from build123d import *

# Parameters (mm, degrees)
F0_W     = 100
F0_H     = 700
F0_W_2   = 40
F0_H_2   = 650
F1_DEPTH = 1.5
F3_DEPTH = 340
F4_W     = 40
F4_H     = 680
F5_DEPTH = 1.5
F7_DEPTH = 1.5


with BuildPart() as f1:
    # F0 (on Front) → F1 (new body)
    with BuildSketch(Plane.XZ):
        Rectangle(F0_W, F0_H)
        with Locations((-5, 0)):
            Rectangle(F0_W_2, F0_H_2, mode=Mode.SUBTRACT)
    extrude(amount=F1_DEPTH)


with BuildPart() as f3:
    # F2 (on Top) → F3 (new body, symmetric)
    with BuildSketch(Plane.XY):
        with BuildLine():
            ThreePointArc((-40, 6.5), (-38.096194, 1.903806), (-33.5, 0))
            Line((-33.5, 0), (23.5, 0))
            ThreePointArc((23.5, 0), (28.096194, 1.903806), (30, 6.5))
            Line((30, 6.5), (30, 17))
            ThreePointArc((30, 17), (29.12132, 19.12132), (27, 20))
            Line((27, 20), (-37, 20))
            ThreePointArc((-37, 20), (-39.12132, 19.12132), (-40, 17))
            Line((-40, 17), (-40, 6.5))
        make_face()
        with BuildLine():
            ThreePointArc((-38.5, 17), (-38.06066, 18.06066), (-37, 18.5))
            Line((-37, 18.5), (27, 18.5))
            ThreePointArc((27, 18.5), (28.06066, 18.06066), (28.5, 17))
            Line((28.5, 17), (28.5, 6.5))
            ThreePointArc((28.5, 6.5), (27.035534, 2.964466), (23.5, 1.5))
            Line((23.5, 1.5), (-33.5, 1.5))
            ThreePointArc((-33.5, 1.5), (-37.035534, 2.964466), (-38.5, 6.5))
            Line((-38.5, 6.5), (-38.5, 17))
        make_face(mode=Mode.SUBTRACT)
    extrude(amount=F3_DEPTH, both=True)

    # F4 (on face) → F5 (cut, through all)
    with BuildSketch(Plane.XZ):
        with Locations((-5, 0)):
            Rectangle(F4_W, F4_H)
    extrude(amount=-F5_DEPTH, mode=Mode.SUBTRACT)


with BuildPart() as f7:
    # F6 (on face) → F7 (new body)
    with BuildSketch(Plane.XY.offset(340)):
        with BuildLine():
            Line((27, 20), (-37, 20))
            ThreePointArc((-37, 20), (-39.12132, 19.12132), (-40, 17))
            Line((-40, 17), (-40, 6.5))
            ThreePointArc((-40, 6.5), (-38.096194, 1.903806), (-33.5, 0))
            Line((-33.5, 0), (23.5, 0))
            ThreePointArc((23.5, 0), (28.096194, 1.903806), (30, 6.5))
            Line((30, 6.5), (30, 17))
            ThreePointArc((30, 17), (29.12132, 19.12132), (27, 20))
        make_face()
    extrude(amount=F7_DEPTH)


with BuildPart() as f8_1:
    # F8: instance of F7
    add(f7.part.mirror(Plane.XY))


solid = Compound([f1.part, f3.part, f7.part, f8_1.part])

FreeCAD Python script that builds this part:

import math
import FreeCAD as App
import Part
import Sketcher

V = App.Vector
Q = App.Units.Quantity


def add_polygon(sketch, points):
    """Adds a closed chain of lines whose ends are joined by coincident constraints."""
    first, n = sketch.GeometryCount, len(points)
    for a, b in zip(points, points[1:] + points[:1]):
        sketch.addGeometry(Part.LineSegment(App.Vector(*a, 0), App.Vector(*b, 0)), False)
    for i in range(n):
        sketch.addConstraint(Sketcher.Constraint("Coincident", first + i, 2, first + (i + 1) % n, 1))

doc = App.newDocument("Part")
body = doc.addObject("PartDesign::Body", "Body")

# Sketch on XZ plane
sketch1 = body.newObject("Sketcher::SketchObject", "Sketch")
sketch1.AttachmentSupport = (doc.getObject("XZ_Plane"), [""])
sketch1.MapMode = "FlatFace"
add_polygon(sketch1, [(-50, 350), (-50, -350), (50, -350), (50, 350)])  # lines 0-3
add_polygon(sketch1, [(15, -325), (-25, -325), (-25, 325), (15, 325)])  # lines 4-7
sketch1.addConstraint(Sketcher.Constraint("Vertical", 0))
sketch1.addConstraint(Sketcher.Constraint("Horizontal", 1))
sketch1.addConstraint(Sketcher.Constraint("Vertical", 2))
sketch1.addConstraint(Sketcher.Constraint("Horizontal", 3))
sketch1.addConstraint(Sketcher.Constraint("Horizontal", 4))
sketch1.addConstraint(Sketcher.Constraint("Vertical", 5))
sketch1.addConstraint(Sketcher.Constraint("Horizontal", 6))
sketch1.addConstraint(Sketcher.Constraint("Vertical", 7))
sketch1.addConstraint(Sketcher.Constraint("Symmetric", 0, 2, 2, 2, -1, 1))
sketch1.addConstraint(Sketcher.Constraint("DistanceX", 1, 1, 1, 2, Q("100 mm")))
sketch1.addConstraint(Sketcher.Constraint("DistanceX", 4, 2, 4, 1, Q("40 mm")))
sketch1.addConstraint(Sketcher.Constraint("DistanceY", 0, 2, 0, 1, Q("700 mm")))
sketch1.addConstraint(Sketcher.Constraint("DistanceY", 5, 1, 5, 2, Q("650 mm")))
sketch1.addConstraint(Sketcher.Constraint("DistanceX", 4, 2, -1, 1, Q("25 mm")))
sketch1.addConstraint(Sketcher.Constraint("DistanceY", 4, 2, -1, 1, Q("325 mm")))
pad1 = body.newObject("PartDesign::Pad", "Pad")
pad1.Profile = sketch1
pad1.Length = 1.5
body2 = doc.addObject("PartDesign::Body", "Body001")

# Sketch on XY plane
sketch2 = body2.newObject("Sketcher::SketchObject", "Sketch001")
sketch2.AttachmentSupport = (doc.getObject("XY_Plane001"), [""])
sketch2.MapMode = "FlatFace"
sketch2.addGeometry(Part.ArcOfCircle(Part.Circle(V(-33.5, 6.5, 0), V(0, 0, 1), 6.5), math.radians(-179.999998), math.radians(-90.000002)), False)
sketch2.addGeometry(Part.LineSegment(V(-33.5, 0, 0), V(23.5, 0, 0)), False)
sketch2.addGeometry(Part.ArcOfCircle(Part.Circle(V(23.5, 6.5, 0), V(0, 0, 1), 6.5), math.radians(-89.999998), math.radians(-0.000002)), False)
sketch2.addGeometry(Part.LineSegment(V(30, 6.5, 0), V(30, 17, 0)), False)
sketch2.addGeometry(Part.ArcOfCircle(Part.Circle(V(26.999999, 16.999999, 0), V(0, 0, 1), 3.000001), math.radians(0.000022), math.radians(89.999978)), False)
sketch2.addGeometry(Part.LineSegment(V(27, 20, 0), V(-37, 20, 0)), False)
sketch2.addGeometry(Part.ArcOfCircle(Part.Circle(V(-36.999999, 16.999999, 0), V(0, 0, 1), 3.000001), math.radians(90.000022), math.radians(179.999978)), False)
sketch2.addGeometry(Part.LineSegment(V(-40, 17, 0), V(-40, 6.5, 0)), False)
sketch2.addGeometry(Part.LineSegment(V(-38.5, 6.5, 0), V(-38.5, 17, 0)), False)
sketch2.addGeometry(Part.ArcOfCircle(Part.Circle(V(-36.999999, 16.999999, 0), V(0, 0, 1), 1.500001), math.radians(90.000022), math.radians(179.999978)), False)
sketch2.addGeometry(Part.LineSegment(V(-37, 18.5, 0), V(27, 18.5, 0)), False)
sketch2.addGeometry(Part.ArcOfCircle(Part.Circle(V(26.999999, 16.999999, 0), V(0, 0, 1), 1.500001), math.radians(0.000022), math.radians(89.999978)), False)
sketch2.addGeometry(Part.LineSegment(V(28.5, 17, 0), V(28.5, 6.5, 0)), False)
sketch2.addGeometry(Part.ArcOfCircle(Part.Circle(V(23.5, 6.5, 0), V(0, 0, 1), 5), math.radians(-90.000004), math.radians(0.000004)), False)
sketch2.addGeometry(Part.LineSegment(V(23.5, 1.5, 0), V(-33.5, 1.5, 0)), False)
sketch2.addGeometry(Part.ArcOfCircle(Part.Circle(V(-33.5, 6.5, 0), V(0, 0, 1), 5), math.radians(179.999996), math.radians(270.000004)), False)
sketch2.addConstraint(Sketcher.Constraint("Tangent", 0, 2, 1, 1))
sketch2.addConstraint(Sketcher.Constraint("Tangent", 1, 2, 2, 1))
sketch2.addConstraint(Sketcher.Constraint("Tangent", 2, 2, 3, 1))
sketch2.addConstraint(Sketcher.Constraint("Tangent", 3, 2, 4, 1))
sketch2.addConstraint(Sketcher.Constraint("Tangent", 4, 2, 5, 1))
sketch2.addConstraint(Sketcher.Constraint("Tangent", 5, 2, 6, 1))
sketch2.addConstraint(Sketcher.Constraint("Tangent", 6, 2, 7, 1))
sketch2.addConstraint(Sketcher.Constraint("Tangent", 7, 2, 0, 1))
sketch2.addConstraint(Sketcher.Constraint("Tangent", 8, 2, 9, 2))
sketch2.addConstraint(Sketcher.Constraint("Tangent", 9, 1, 10, 1))
sketch2.addConstraint(Sketcher.Constraint("Tangent", 10, 2, 11, 2))
sketch2.addConstraint(Sketcher.Constraint("Tangent", 11, 1, 12, 1))
sketch2.addConstraint(Sketcher.Constraint("Tangent", 12, 2, 13, 2))
sketch2.addConstraint(Sketcher.Constraint("Tangent", 13, 1, 14, 1))
sketch2.addConstraint(Sketcher.Constraint("Tangent", 14, 2, 15, 2))
sketch2.addConstraint(Sketcher.Constraint("Tangent", 15, 1, 8, 1))
sketch2.addConstraint(Sketcher.Constraint("Horizontal", 1))
sketch2.addConstraint(Sketcher.Constraint("Vertical", 3))
sketch2.addConstraint(Sketcher.Constraint("Horizontal", 5))
sketch2.addConstraint(Sketcher.Constraint("Vertical", 7))
sketch2.addConstraint(Sketcher.Constraint("Vertical", 8))
sketch2.addConstraint(Sketcher.Constraint("Horizontal", 10))
sketch2.addConstraint(Sketcher.Constraint("Vertical", 12))
sketch2.addConstraint(Sketcher.Constraint("Horizontal", 14))
sketch2.addConstraint(Sketcher.Constraint("Coincident", 9, 3, 6, 3))
sketch2.addConstraint(Sketcher.Constraint("Coincident", 11, 3, 4, 3))
sketch2.addConstraint(Sketcher.Constraint("Coincident", 13, 3, 2, 3))
sketch2.addConstraint(Sketcher.Constraint("Equal", 0, 2))
sketch2.addConstraint(Sketcher.Constraint("Equal", 4, 6))
sketch2.addConstraint(Sketcher.Constraint("Equal", 13, 15))
sketch2.addConstraint(Sketcher.Constraint("PointOnObject", 0, 2, -1))
sketch2.addConstraint(Sketcher.Constraint("Radius", 4, Q("3.000001 mm")))
sketch2.addConstraint(Sketcher.Constraint("Radius", 13, Q("5 mm")))
sketch2.addConstraint(Sketcher.Constraint("Radius", 0, Q("6.5 mm")))
sketch2.addConstraint(Sketcher.Constraint("DistanceX", 1, 1, 1, 2, Q("57 mm")))
sketch2.addConstraint(Sketcher.Constraint("DistanceY", 3, 1, 3, 2, Q("10.5 mm")))
sketch2.addConstraint(Sketcher.Constraint("DistanceX", -1, 1, 4, 3, Q("26.999999 mm")))
pad2 = body2.newObject("PartDesign::Pad", "Pad001")
pad2.Profile = sketch2
pad2.Length = 680
pad2.Midplane = True

# Sketch on XZ plane
sketch3 = body2.newObject("Sketcher::SketchObject", "Sketch002")
sketch3.AttachmentSupport = (doc.getObject("XZ_Plane001"), [""])
sketch3.MapMode = "FlatFace"
add_polygon(sketch3, [(-25, 340), (-25, -340), (15, -340), (15, 340)])  # lines 0-3
sketch3.addConstraint(Sketcher.Constraint("Vertical", 0))
sketch3.addConstraint(Sketcher.Constraint("Horizontal", 1))
sketch3.addConstraint(Sketcher.Constraint("Vertical", 2))
sketch3.addConstraint(Sketcher.Constraint("Horizontal", 3))
sketch3.addConstraint(Sketcher.Constraint("DistanceX", 1, 1, 1, 2, Q("40 mm")))
sketch3.addConstraint(Sketcher.Constraint("DistanceY", 0, 2, 0, 1, Q("680 mm")))
sketch3.addConstraint(Sketcher.Constraint("DistanceX", 0, 2, -1, 1, Q("25 mm")))
sketch3.addConstraint(Sketcher.Constraint("DistanceY", 0, 2, -1, 1, Q("340 mm")))
pocket1 = body2.newObject("PartDesign::Pocket", "Pocket")
pocket1.Profile = sketch3
pocket1.Length = 1.5
body3 = doc.addObject("PartDesign::Body", "Body002")

# Sketch on XY plane
sketch4 = body3.newObject("Sketcher::SketchObject", "Sketch003")
sketch4.AttachmentSupport = (doc.getObject("XY_Plane002"), [""])
sketch4.MapMode = "FlatFace"
sketch4.AttachmentOffset = App.Placement(V(0, 0, 340), App.Rotation())
sketch4.addGeometry(Part.LineSegment(V(27, 20, 0), V(-37, 20, 0)), False)
sketch4.addGeometry(Part.ArcOfCircle(Part.Circle(V(-36.999999, 16.999999, 0), V(0, 0, 1), 3.000001), math.radians(90.000022), math.radians(179.999978)), False)
sketch4.addGeometry(Part.LineSegment(V(-40, 17, 0), V(-40, 6.5, 0)), False)
sketch4.addGeometry(Part.ArcOfCircle(Part.Circle(V(-33.5, 6.5, 0), V(0, 0, 1), 6.5), math.radians(-179.999998), math.radians(-90.000002)), False)
sketch4.addGeometry(Part.LineSegment(V(-33.5, 0, 0), V(23.5, 0, 0)), False)
sketch4.addGeometry(Part.ArcOfCircle(Part.Circle(V(23.5, 6.5, 0), V(0, 0, 1), 6.5), math.radians(-89.999998), math.radians(-0.000002)), False)
sketch4.addGeometry(Part.LineSegment(V(30, 6.5, 0), V(30, 17, 0)), False)
sketch4.addGeometry(Part.ArcOfCircle(Part.Circle(V(26.999999, 16.999999, 0), V(0, 0, 1), 3.000001), math.radians(0.000022), math.radians(89.999978)), False)
sketch4.addConstraint(Sketcher.Constraint("Tangent", 0, 2, 1, 1))
sketch4.addConstraint(Sketcher.Constraint("Tangent", 1, 2, 2, 1))
sketch4.addConstraint(Sketcher.Constraint("Tangent", 2, 2, 3, 1))
sketch4.addConstraint(Sketcher.Constraint("Tangent", 3, 2, 4, 1))
sketch4.addConstraint(Sketcher.Constraint("Tangent", 4, 2, 5, 1))
sketch4.addConstraint(Sketcher.Constraint("Tangent", 5, 2, 6, 1))
sketch4.addConstraint(Sketcher.Constraint("Tangent", 6, 2, 7, 1))
sketch4.addConstraint(Sketcher.Constraint("Tangent", 7, 2, 0, 1))
sketch4.addConstraint(Sketcher.Constraint("Horizontal", 0))
sketch4.addConstraint(Sketcher.Constraint("Vertical", 2))
sketch4.addConstraint(Sketcher.Constraint("Horizontal", 4))
sketch4.addConstraint(Sketcher.Constraint("Vertical", 6))
sketch4.addConstraint(Sketcher.Constraint("Equal", 3, 5))
sketch4.addConstraint(Sketcher.Constraint("Equal", 1, 7))
sketch4.addConstraint(Sketcher.Constraint("PointOnObject", 3, 2, -1))
sketch4.addConstraint(Sketcher.Constraint("Radius", 1, Q("3.000001 mm")))
sketch4.addConstraint(Sketcher.Constraint("Radius", 3, Q("6.5 mm")))
sketch4.addConstraint(Sketcher.Constraint("DistanceX", 0, 2, 0, 1, Q("64 mm")))
sketch4.addConstraint(Sketcher.Constraint("DistanceY", 2, 2, 2, 1, Q("10.5 mm")))
sketch4.addConstraint(Sketcher.Constraint("DistanceX", 1, 3, -1, 1, Q("36.999999 mm")))
pad3 = body3.newObject("PartDesign::Pad", "Pad002")
pad3.Profile = sketch4
pad3.Length = 1.5
body4 = doc.addObject("PartDesign::Body", "Body003")
doc.recompute()

mirroring = doc.addObject("Part::Mirroring", "Mirroring")
mirroring.Source = body3
mirroring.Base = V(0, 0, 0)
mirroring.Normal = V(0, 0, 1)
body4.BaseFeature = mirroring
doc.recompute()
mirroring.Visibility = False

doc.recompute()
